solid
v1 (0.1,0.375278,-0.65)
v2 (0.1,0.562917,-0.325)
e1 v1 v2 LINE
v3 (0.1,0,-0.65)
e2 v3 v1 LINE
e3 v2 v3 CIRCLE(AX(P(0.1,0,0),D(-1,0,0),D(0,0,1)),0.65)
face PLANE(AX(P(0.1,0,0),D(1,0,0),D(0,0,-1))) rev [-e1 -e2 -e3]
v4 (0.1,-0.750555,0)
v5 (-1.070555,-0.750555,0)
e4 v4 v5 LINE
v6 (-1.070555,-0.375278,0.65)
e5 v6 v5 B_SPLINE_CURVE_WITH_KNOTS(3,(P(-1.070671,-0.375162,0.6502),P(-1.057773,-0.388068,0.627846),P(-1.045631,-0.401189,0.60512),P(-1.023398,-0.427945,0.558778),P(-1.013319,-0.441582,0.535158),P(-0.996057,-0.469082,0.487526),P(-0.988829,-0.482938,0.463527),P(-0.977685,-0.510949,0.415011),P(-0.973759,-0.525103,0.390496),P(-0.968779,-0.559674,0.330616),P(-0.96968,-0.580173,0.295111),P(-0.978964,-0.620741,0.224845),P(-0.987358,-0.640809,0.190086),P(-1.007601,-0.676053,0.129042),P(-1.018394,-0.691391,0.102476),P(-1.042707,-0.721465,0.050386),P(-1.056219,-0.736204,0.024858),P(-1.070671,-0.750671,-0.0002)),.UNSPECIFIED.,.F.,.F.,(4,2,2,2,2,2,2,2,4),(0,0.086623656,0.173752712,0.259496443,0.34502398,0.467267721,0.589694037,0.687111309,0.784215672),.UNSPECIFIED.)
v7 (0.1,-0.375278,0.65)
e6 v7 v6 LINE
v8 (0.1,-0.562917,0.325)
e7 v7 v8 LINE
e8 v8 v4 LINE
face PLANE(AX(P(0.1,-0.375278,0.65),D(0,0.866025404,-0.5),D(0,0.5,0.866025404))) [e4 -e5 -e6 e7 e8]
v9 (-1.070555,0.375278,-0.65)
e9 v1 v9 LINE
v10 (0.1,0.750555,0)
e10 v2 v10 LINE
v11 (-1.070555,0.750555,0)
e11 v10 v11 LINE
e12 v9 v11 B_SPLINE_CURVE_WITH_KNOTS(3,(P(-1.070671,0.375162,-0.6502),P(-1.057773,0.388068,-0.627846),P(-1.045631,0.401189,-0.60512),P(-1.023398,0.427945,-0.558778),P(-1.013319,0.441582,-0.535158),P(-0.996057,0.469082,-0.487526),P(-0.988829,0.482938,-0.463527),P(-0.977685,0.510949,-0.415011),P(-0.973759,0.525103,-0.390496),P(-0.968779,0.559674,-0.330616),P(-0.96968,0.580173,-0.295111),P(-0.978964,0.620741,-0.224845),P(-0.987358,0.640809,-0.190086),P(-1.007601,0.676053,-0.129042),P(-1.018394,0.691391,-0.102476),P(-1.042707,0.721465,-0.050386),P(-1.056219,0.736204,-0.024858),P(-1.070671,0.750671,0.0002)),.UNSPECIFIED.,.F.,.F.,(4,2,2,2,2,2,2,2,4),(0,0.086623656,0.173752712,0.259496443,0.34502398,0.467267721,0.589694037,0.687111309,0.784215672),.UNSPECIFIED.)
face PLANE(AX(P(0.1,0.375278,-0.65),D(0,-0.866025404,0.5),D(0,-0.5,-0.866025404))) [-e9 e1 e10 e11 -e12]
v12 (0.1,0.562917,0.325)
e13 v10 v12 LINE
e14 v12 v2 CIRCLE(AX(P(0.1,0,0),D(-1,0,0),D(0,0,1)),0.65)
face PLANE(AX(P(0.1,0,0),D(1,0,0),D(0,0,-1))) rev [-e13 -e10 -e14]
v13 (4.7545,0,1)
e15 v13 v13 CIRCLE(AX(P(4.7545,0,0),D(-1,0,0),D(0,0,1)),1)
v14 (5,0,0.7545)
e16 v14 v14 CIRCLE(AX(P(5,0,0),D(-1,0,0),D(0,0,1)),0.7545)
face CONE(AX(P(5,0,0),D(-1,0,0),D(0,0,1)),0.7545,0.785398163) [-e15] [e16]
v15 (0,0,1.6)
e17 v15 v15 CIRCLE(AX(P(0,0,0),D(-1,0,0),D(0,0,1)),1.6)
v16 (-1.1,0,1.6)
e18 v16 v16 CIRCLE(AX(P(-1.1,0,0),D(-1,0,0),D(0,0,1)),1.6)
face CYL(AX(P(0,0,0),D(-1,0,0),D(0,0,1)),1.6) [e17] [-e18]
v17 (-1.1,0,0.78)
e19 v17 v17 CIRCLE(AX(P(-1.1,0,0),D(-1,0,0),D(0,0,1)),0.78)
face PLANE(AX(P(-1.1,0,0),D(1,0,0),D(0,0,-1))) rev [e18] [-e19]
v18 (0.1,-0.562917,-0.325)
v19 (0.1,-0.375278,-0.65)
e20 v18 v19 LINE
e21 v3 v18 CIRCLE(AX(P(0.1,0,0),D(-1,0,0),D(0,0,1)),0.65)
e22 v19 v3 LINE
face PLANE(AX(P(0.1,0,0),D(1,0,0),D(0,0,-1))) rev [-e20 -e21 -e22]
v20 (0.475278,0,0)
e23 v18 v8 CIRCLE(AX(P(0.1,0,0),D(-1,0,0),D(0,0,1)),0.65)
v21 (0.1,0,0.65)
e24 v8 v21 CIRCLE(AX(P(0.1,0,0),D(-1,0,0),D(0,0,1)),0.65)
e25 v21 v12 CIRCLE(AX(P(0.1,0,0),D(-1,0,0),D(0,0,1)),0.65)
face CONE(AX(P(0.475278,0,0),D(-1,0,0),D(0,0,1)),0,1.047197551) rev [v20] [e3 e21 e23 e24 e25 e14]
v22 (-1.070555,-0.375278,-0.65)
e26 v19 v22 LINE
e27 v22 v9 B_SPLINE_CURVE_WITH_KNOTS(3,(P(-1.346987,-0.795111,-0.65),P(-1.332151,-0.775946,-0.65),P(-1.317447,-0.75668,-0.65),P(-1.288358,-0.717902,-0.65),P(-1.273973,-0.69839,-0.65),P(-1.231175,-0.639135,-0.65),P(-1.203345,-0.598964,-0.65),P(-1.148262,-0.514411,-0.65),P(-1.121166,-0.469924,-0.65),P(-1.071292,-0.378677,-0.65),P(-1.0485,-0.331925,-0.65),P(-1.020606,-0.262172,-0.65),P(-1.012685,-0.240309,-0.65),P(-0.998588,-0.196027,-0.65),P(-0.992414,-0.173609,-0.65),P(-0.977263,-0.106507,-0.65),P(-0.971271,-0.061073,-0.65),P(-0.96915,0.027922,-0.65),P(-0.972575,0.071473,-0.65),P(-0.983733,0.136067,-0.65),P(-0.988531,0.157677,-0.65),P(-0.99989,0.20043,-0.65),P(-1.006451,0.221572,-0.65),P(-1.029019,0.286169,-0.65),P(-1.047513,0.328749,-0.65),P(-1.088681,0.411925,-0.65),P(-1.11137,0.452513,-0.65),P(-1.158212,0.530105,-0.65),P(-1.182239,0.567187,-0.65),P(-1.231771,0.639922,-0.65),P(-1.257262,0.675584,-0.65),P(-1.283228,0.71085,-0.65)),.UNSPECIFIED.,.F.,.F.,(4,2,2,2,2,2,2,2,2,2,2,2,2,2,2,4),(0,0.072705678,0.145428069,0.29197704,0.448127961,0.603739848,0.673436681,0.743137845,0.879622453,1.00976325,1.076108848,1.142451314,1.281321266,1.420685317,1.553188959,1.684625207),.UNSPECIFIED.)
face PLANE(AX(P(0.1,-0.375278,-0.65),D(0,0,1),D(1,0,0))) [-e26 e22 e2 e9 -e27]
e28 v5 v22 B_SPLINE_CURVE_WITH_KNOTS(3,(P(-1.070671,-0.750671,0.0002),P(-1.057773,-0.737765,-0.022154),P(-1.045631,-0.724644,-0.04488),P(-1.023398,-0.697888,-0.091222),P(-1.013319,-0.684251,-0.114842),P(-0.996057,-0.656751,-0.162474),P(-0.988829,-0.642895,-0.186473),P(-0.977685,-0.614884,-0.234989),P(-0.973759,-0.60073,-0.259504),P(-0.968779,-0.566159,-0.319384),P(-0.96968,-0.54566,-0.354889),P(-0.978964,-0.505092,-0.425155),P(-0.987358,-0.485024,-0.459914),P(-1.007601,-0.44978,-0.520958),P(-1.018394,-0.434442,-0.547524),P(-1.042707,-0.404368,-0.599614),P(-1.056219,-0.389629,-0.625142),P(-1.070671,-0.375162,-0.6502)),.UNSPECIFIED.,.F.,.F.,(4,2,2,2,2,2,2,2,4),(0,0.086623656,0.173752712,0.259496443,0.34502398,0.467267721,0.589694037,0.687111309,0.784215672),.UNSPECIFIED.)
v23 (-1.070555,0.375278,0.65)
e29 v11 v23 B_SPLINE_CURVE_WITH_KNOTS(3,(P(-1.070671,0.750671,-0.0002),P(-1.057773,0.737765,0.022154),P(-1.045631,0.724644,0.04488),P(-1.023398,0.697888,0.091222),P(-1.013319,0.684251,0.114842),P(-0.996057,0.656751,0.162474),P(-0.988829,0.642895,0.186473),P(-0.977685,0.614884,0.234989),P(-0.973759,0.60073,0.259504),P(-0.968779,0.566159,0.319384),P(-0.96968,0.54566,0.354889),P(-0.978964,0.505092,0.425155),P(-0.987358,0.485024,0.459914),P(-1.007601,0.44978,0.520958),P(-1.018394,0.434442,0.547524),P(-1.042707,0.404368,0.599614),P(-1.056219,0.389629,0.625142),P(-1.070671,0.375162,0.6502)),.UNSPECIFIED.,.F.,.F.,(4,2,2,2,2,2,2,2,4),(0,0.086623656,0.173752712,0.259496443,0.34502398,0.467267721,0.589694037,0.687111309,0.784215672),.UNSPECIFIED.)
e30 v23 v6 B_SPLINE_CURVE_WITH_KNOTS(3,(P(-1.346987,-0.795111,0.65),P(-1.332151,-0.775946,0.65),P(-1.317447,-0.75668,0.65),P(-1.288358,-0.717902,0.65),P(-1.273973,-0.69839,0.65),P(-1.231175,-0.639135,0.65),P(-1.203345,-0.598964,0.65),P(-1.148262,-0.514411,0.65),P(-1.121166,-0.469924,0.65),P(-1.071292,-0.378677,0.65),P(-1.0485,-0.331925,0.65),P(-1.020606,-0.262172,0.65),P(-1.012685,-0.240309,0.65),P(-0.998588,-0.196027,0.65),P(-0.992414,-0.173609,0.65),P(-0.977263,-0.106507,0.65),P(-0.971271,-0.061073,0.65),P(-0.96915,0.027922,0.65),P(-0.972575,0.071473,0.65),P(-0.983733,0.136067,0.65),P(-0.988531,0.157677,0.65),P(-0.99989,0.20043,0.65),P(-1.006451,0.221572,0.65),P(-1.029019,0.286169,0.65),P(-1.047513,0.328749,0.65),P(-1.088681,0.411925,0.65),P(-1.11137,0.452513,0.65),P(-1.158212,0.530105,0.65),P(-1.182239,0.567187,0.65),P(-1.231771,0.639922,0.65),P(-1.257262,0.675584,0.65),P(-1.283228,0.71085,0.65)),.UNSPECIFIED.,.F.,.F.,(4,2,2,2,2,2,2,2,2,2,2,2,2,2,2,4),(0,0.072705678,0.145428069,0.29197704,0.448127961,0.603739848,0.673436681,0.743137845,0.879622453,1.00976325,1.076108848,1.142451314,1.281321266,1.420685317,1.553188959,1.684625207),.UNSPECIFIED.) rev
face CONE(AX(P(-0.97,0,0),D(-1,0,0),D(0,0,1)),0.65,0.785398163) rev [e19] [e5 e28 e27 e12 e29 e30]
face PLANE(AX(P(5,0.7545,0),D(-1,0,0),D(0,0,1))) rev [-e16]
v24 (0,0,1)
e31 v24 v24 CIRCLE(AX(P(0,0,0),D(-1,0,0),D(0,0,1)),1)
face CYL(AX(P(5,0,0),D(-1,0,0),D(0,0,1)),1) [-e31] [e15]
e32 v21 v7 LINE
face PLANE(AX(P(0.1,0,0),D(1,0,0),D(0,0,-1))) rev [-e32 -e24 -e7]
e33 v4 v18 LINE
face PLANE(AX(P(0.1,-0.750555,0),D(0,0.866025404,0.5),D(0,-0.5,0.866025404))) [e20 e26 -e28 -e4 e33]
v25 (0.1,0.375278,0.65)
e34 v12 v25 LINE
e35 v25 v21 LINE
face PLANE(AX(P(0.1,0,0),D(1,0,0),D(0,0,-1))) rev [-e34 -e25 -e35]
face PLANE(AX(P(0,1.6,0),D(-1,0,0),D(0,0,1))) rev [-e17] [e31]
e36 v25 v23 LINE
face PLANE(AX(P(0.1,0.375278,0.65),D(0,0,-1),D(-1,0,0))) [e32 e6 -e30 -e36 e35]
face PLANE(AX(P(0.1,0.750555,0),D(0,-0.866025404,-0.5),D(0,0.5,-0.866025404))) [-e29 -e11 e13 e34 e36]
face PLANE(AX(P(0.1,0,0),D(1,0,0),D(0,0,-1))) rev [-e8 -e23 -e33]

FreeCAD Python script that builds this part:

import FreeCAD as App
import Part
import Sketcher
Q = App.Units.Quantity

doc = App.newDocument("Part")
body = doc.addObject("PartDesign::Body", "Body")

# Sketch on XY plane
sketch1 = body.newObject("Sketcher::SketchObject", "Sketch")
sketch1.AttachmentSupport = (doc.getObject("XY_Plane"), [""])
sketch1.MapMode = "FlatFace"
sketch1.addGeometry([
    Part.LineSegment(App.Vector(0, 1, 0), App.Vector(0, 0, 0)),  # 0
    Part.LineSegment(App.Vector(0, 0, 0), App.Vector(5, 0, 0)),  # 1
    Part.LineSegment(App.Vector(5, 0, 0), App.Vector(5, 0.7545, 0)),  # 2
    Part.LineSegment(App.Vector(5, 0.7545, 0), App.Vector(4.7545, 1, 0)),  # 3
    Part.LineSegment(App.Vector(4.7545, 1, 0), App.Vector(0, 1, 0)),  # 4
], False)
sketch1.addConstraint([
    Sketcher.Constraint("Coincident", 0, 2, 1, 1),
    Sketcher.Constraint("Coincident", 1, 2, 2, 1),
    Sketcher.Constraint("Coincident", 2, 2, 3, 1),
    Sketcher.Constraint("Coincident", 3, 2, 4, 1),
    Sketcher.Constraint("Coincident", 4, 2, 0, 1),
    Sketcher.Constraint("Vertical", 0),
    Sketcher.Constraint("Horizontal", 1),
    Sketcher.Constraint("Vertical", 2),
    Sketcher.Constraint("Horizontal", 4),
    Sketcher.Constraint("Coincident", 0, 2, -1, 1),
    Sketcher.Constraint("DistanceX", 1, 1, 1, 2, Q("5 mm")),
    Sketcher.Constraint("DistanceY", 0, 2, 0, 1, Q("1 mm")),
    Sketcher.Constraint("Angle", 3, Q("135 deg")),
    Sketcher.Constraint("DistanceX", 4, 2, 4, 1, Q("4.7545 mm")),
])
revolution = body.newObject("PartDesign::Revolution", "Revolution")
revolution.Profile = sketch1
revolution.ReferenceAxis = (sketch1, ["H_Axis"])
revolution.Angle = 360

# Sketch on XY plane
sketch2 = body.newObject("Sketcher::SketchObject", "Sketch001")
sketch2.AttachmentSupport = (doc.getObject("XY_Plane"), [""])
sketch2.MapMode = "FlatFace"
sketch2.addGeometry([
    Part.LineSegment(App.Vector(-1.1, 1.6, 0), App.Vector(-1.1, 0, 0)),
    Part.LineSegment(App.Vector(-1.1, 0, 0), App.Vector(0, 0, 0)),
    Part.LineSegment(App.Vector(0, 0, 0), App.Vector(0, 1.6, 0)),
    Part.LineSegment(App.Vector(0, 1.6, 0), App.Vector(-1.1, 1.6, 0)),
], False)
sketch2.addConstraint([
    Sketcher.Constraint("Coincident", 0, 2, 1, 1),
    Sketcher.Constraint("Coincident", 1, 2, 2, 1),
    Sketcher.Constraint("Coincident", 2, 2, 3, 1),
    Sketcher.Constraint("Coincident", 3, 2, 0, 1),
    Sketcher.Constraint("Vertical", 0),
    Sketcher.Constraint("Horizontal", 1),
    Sketcher.Constraint("Vertical", 2),
    Sketcher.Constraint("Horizontal", 3),
    Sketcher.Constraint("Coincident", 1, 2, -1, 1),
    Sketcher.Constraint("DistanceX", 1, 1, 1, 2, Q("1.1 mm")),
    Sketcher.Constraint("DistanceY", 0, 2, 0, 1, Q("1.6 mm")),
])
revolution2 = body.newObject("PartDesign::Revolution", "Revolution001")
revolution2.Profile = sketch2
revolution2.ReferenceAxis = (sketch2, ["H_Axis"])
revolution2.Angle = 360

# Sketch on XY plane
sketch3 = body.newObject("Sketcher::SketchObject", "Sketch002")
sketch3.AttachmentSupport = (doc.getObject("XY_Plane"), [""])
sketch3.MapMode = "FlatFace"
sketch3.addGeometry([
    Part.LineSegment(App.Vector(-1.1, 0.78, 0), App.Vector(-1.1, 0, 0)),  # 0
    Part.LineSegment(App.Vector(-1.1, 0, 0), App.Vector(0.475278, 0, 0)),  # 1
    Part.LineSegment(App.Vector(0.475278, 0, 0), App.Vector(0.1, 0.65, 0)),  # 2
    Part.LineSegment(App.Vector(0.1, 0.65, 0), App.Vector(-0.97, 0.65, 0)),  # 3
    Part.LineSegment(App.Vector(-0.97, 0.65, 0), App.Vector(-1.1, 0.78, 0)),  # 4
], False)
sketch3.addConstraint([
    Sketcher.Constraint("Coincident", 0, 2, 1, 1),
    Sketcher.Constraint("Coincident", 1, 2, 2, 1),
    Sketcher.Constraint("Coincident", 2, 2, 3, 1),
    Sketcher.Constraint("Coincident", 3, 2, 4, 1),
    Sketcher.Constraint("Coincident", 4, 2, 0, 1),
    Sketcher.Constraint("Vertical", 0),
    Sketcher.Constraint("Horizontal", 1),
    Sketcher.Constraint("Horizontal", 3),
    Sketcher.Constraint("PointOnObject", 0, 2, -1),
    Sketcher.Constraint("Angle", 2, Q("120 deg")),
    Sketcher.Constraint("Angle", 4, Q("135 deg")),
    Sketcher.Constraint("DistanceX", 3, 2, 3, 1, Q("1.07 mm")),
    Sketcher.Constraint("DistanceY", 0, 2, 0, 1, Q("0.78 mm")),
    Sketcher.Constraint("DistanceX", 0, 2, -1, 1, Q("1.1 mm")),
    Sketcher.Constraint("DistanceX", -1, 1, 2, 2, Q("0.1 mm")),
])
groove = body.newObject("PartDesign::Groove", "Groove")
groove.Profile = sketch3
groove.ReferenceAxis = (sketch3, ["H_Axis"])
groove.Angle = 360

# Sketch on YZ plane
sketch4 = body.newObject("Sketcher::SketchObject", "Sketch003")
sketch4.AttachmentSupport = (doc.getObject("YZ_Plane"), [""])
sketch4.MapMode = "FlatFace"
sketch4.AttachmentOffset = App.Placement(App.Vector(0, 0, -1.1), App.Rotation())
sketch4.addGeometry([
    Part.LineSegment(App.Vector(-0.375278, 0.65, 0), App.Vector(-0.750555, 0, 0)),  # 0
    Part.LineSegment(App.Vector(-0.750555, 0, 0), App.Vector(-0.375278, -0.65, 0)),  # 1
    Part.LineSegment(App.Vector(-0.375278, -0.65, 0), App.Vector(0.375278, -0.65, 0)),  # 2
    Part.LineSegment(App.Vector(0.375278, -0.65, 0), App.Vector(0.750555, 0, 0)),  # 3
    Part.LineSegment(App.Vector(0.750555, 0, 0), App.Vector(0.375278, 0.65, 0)),  # 4
    Part.LineSegment(App.Vector(0.375278, 0.65, 0), App.Vector(-0.375278, 0.65, 0)),  # 5
], False)
sketch4.addConstraint([
    Sketcher.Constraint("Coincident", 0, 2, 1, 1),
    Sketcher.Constraint("Coincident", 1, 2, 2, 1),
    Sketcher.Constraint("Coincident", 2, 2, 3, 1),
    Sketcher.Constraint("Coincident", 3, 2, 4, 1),
    Sketcher.Constraint("Coincident", 4, 2, 5, 1),
    Sketcher.Constraint("Coincident", 5, 2, 0, 1),
    Sketcher.Constraint("Horizontal", 2),
    Sketcher.Constraint("Horizontal", 5),
    Sketcher.Constraint("Symmetric", 0, 2, 3, 2, -1, 1),
    Sketcher.Constraint("Symmetric", 1, 2, 4, 2, -1, 1),
    Sketcher.Constraint("PointOnObject", 0, 2, -1),
    Sketcher.Constraint("Parallel", 0, 3),
    Sketcher.Constraint("Vertical", 2, 2, 4, 2),
    Sketcher.Constraint("Angle", 0, Q("-120 deg")),
    Sketcher.Constraint("DistanceY", 2, 2, 4, 2, Q("1.3 mm")),
    Sketcher.Constraint("DistanceX", 2, 1, 2, 2, Q("0.750555 mm")),
])
pocket1 = body.newObject("PartDesign::Pocket", "Pocket")
pocket1.Profile = sketch4
pocket1.Length = 1.2
pocket1.Reversed = True

doc.recompute()
